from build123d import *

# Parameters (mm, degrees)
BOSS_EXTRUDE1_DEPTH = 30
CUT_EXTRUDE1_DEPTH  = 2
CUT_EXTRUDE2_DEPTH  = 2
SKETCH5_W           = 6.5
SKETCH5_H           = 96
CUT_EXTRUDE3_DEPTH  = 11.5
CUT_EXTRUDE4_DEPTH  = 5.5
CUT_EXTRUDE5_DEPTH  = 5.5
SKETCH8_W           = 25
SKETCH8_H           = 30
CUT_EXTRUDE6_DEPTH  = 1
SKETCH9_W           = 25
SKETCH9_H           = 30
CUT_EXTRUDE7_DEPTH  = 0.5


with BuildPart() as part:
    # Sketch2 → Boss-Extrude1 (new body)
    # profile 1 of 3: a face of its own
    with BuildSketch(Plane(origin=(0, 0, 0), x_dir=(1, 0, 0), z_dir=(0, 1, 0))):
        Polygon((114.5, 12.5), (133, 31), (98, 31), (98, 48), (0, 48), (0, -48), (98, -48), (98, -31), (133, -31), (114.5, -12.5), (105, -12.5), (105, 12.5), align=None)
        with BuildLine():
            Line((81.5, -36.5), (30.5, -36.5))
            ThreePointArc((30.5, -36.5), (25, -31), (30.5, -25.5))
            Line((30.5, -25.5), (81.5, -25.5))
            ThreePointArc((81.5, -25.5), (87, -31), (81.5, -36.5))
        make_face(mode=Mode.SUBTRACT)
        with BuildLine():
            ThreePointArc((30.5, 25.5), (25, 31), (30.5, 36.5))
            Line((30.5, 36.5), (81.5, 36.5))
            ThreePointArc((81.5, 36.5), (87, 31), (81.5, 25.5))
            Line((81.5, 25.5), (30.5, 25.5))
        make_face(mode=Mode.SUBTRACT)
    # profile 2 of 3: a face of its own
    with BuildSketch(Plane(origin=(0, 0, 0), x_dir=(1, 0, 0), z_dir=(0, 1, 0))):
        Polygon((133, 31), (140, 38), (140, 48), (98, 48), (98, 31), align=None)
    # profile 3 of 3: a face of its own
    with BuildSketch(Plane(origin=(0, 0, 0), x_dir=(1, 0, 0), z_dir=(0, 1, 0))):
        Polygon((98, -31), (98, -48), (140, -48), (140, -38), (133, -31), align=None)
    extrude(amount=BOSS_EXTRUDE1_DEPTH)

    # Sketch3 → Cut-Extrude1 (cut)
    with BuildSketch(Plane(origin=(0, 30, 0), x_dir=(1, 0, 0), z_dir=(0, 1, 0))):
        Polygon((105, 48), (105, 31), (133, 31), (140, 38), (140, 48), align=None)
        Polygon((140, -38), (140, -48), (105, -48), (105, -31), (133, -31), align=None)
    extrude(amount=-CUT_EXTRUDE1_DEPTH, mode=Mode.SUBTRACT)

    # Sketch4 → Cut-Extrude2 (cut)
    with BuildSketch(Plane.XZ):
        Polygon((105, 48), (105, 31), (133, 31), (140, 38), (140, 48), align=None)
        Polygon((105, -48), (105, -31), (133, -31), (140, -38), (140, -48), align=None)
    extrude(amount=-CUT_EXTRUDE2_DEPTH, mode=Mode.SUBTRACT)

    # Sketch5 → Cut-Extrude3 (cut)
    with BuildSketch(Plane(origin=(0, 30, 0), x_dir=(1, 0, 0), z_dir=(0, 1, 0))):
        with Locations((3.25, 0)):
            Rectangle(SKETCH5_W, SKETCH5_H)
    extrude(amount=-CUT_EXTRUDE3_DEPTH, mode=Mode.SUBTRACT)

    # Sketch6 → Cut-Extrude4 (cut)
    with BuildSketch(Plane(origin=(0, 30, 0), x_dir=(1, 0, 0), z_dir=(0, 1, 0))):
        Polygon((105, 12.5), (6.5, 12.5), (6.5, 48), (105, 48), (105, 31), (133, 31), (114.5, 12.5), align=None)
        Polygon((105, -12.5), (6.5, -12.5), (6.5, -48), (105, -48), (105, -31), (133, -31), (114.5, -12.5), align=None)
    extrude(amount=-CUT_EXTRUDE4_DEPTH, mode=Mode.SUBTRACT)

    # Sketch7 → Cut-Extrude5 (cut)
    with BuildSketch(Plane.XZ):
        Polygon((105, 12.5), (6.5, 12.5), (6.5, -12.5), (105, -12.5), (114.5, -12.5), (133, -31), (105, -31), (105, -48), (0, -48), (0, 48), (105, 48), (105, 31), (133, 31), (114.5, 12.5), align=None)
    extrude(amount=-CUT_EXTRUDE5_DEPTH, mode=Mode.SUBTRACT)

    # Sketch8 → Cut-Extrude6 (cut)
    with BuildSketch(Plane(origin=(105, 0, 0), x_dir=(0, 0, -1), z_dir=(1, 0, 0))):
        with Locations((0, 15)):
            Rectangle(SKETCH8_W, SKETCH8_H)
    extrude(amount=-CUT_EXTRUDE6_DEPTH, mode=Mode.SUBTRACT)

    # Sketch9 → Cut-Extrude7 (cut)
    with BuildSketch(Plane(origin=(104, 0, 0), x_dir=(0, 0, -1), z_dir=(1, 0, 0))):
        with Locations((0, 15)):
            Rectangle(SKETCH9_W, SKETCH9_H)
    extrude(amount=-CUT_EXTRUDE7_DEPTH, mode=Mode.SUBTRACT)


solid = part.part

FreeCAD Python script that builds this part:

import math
import FreeCAD as App
import Part
import Sketcher
Q = App.Units.Quantity

doc = App.newDocument("Part")
body = doc.addObject("PartDesign::Body", "Body")

# Sketch on XZ plane
sketch1 = doc.addObject("Sketcher::SketchObject", "Sketch")
body.addObject(sketch1)
sketch1.AttachmentSupport = (doc.XZ_Plane, [""])
sketch1.MapMode = "FlatFace"
sketch1.addGeometry([
    Part.LineSegment(App.Vector(114, -12, 0), App.Vector(140, -38, 0)),  # 0
    Part.LineSegment(App.Vector(140, -38, 0), App.Vector(140, -48, 0)),  # 1
    Part.LineSegment(App.Vector(140, -48, 0), App.Vector(0, -48, 0)),  # 2
    Part.LineSegment(App.Vector(0, -48, 0), App.Vector(0, 48, 0)),  # 3
    Part.LineSegment(App.Vector(0, 48, 0), App.Vector(140, 48, 0)),  # 4
    Part.LineSegment(App.Vector(140, 48, 0), App.Vector(140, 38, 0)),  # 5
    Part.LineSegment(App.Vector(140, 38, 0), App.Vector(114, 12, 0)),  # 6
    Part.LineSegment(App.Vector(114, 12, 0), App.Vector(105, 12, 0)),  # 7
    Part.LineSegment(App.Vector(105, 12, 0), App.Vector(105, -12, 0)),  # 8
    Part.LineSegment(App.Vector(105, -12, 0), App.Vector(114, -12, 0)),  # 9
    Part.ArcOfCircle(Part.Circle(App.Vector(82, 31, 0), App.Vector(0, 0, 1), 6), math.radians(-90), math.radians(90)),  # 10
    Part.LineSegment(App.Vector(82, 36, 0), App.Vector(30, 36, 0)),  # 11
    Part.ArcOfCircle(Part.Circle(App.Vector(30, 31, 0), App.Vector(0, 0, 1), 6), math.radians(90), math.radians(270)),  # 12
    Part.LineSegment(App.Vector(30, 26, 0), App.Vector(82, 26, 0)),  # 13
    Part.LineSegment(App.Vector(82, -26, 0), App.Vector(30, -26, 0)),  # 14
    Part.ArcOfCircle(Part.Circle(App.Vector(30, -31, 0), App.Vector(0, 0, 1), 6), math.radians(90), math.radians(270)),  # 15
    Part.LineSegment(App.Vector(30, -36, 0), App.Vector(82, -36, 0)),  # 16
    Part.ArcOfCircle(Part.Circle(App.Vector(82, -31, 0), App.Vector(0, 0, 1), 6), math.radians(-90), math.radians(90)),  # 17
], False)
sketch1.addConstraint([
    Sketcher.Constraint("Coincident", 0, 2, 1, 1),
    Sketcher.Constraint("Coincident", 1, 2, 2, 1),
    Sketcher.Constraint("Coincident", 2, 2, 3, 1),
    Sketcher.Constraint("Coincident", 3, 2, 4, 1),
    Sketcher.Constraint("Coincident", 4, 2, 5, 1),
    Sketcher.Constraint("Coincident", 5, 2, 6, 1),
    Sketcher.Constraint("Coincident", 6, 2, 7, 1),
    Sketcher.Constraint("Coincident", 7, 2, 8, 1),
    Sketcher.Constraint("Coincident", 8, 2, 9, 1),
    Sketcher.Constraint("Coincident", 9, 2, 0, 1),
    Sketcher.Constraint("Tangent", 10, 2, 11, 1),
    Sketcher.Constraint("Tangent", 11, 2, 12, 1),
    Sketcher.Constraint("Tangent", 12, 2, 13, 1),
    Sketcher.Constraint("Tangent", 13, 2, 10, 1),
    Sketcher.Constraint("Tangent", 14, 2, 15, 1),
    Sketcher.Constraint("Tangent", 15, 2, 16, 1),
    Sketcher.Constraint("Tangent", 16, 2, 17, 1),
    Sketcher.Constraint("Tangent", 17, 2, 14, 1),
    Sketcher.Constraint("Vertical", 1),
    Sketcher.Constraint("Horizontal", 2),
    Sketcher.Constraint("Vertical", 3),
    Sketcher.Constraint("Horizontal", 4),
    Sketcher.Constraint("Vertical", 5),
    Sketcher.Constraint("Horizontal", 7),
    Sketcher.Constraint("Vertical", 8),
    Sketcher.Constraint("Horizontal", 9),
    Sketcher.Constraint("Horizontal", 11),
    Sketcher.Constraint("Horizontal", 13),
    Sketcher.Constraint("Horizontal", 14),
    Sketcher.Constraint("Horizontal", 16),
    Sketcher.Constraint("Equal", 12, 15),
    Sketcher.Constraint("Symmetric", 2, 2, 3, 2, -1, 1),
    Sketcher.Constraint("Symmetric", 12, 3, 15, 3, -1),
    Sketcher.Constraint("Symmetric", 0, 2, 5, 2, -1),
    Sketcher.Constraint("Symmetric", 6, 2, 9, 2, -1),
    Sketcher.Constraint("Perpendicular", 0, 6),
    Sketcher.Constraint("Vertical", 10, 3, 17, 3),
    Sketcher.Constraint("Radius", 10, Q("5.5 mm")),
    Sketcher.Constraint("DistanceX", 2, 2, 2, 1, Q("140 mm")),
    Sketcher.Constraint("DistanceX", 11, 2, 11, 1, Q("51 mm")),
    Sketcher.Constraint("DistanceY", 1, 2, 1, 1, Q("10 mm")),
    Sketcher.Constraint("DistanceY", 3, 1, 3, 2, Q("96 mm")),
    Sketcher.Constraint("DistanceY", 8, 2, 8, 1, Q("25 mm")),
    Sketcher.Constraint("DistanceX", 7, 2, 7, 1, Q("9.5 mm")),
    Sketcher.Constraint("DistanceY", -1, 1, 10, 3, Q("31 mm")),
    Sketcher.Constraint("DistanceX", 10, 3, 6, 2, Q("33 mm")),
])
pad1 = doc.addObject("PartDesign::Pad", "Pad")
body.addObject(pad1)
pad1.Profile = sketch1
pad1.Length = 30
pad1.Reversed = True

# Sketch on XZ plane
sketch2 = doc.addObject("Sketcher::SketchObject", "Sketch001")
body.addObject(sketch2)
sketch2.AttachmentSupport = (doc.XZ_Plane, [""])
sketch2.MapMode = "FlatFace"
sketch2.AttachmentOffset = App.Placement(App.Vector(0, 0, -30), App.Rotation())
sketch2.addGeometry([
    Part.LineSegment(App.Vector(105, -48, 0), App.Vector(105, -31, 0)),  # 0
    Part.LineSegment(App.Vector(105, -31, 0), App.Vector(133, -31, 0)),  # 1
    Part.LineSegment(App.Vector(133, -31, 0), App.Vector(140, -38, 0)),  # 2
    Part.LineSegment(App.Vector(140, -38, 0), App.Vector(140, -48, 0)),  # 3
    Part.LineSegment(App.Vector(140, -48, 0), App.Vector(105, -48, 0)),  # 4
    Part.LineSegment(App.Vector(140, 48, 0), App.Vector(140, 38, 0)),  # 5
    Part.LineSegment(App.Vector(140, 38, 0), App.Vector(133, 31, 0)),  # 6
    Part.LineSegment(App.Vector(133, 31, 0), App.Vector(105, 31, 0)),  # 7
    Part.LineSegment(App.Vector(105, 31, 0), App.Vector(105, 48, 0)),  # 8
    Part.LineSegment(App.Vector(105, 48, 0), App.Vector(140, 48, 0)),  # 9
], False)
sketch2.addConstraint([
    Sketcher.Constraint("Coincident", 0, 2, 1, 1),
    Sketcher.Constraint("Coincident", 1, 2, 2, 1),
    Sketcher.Constraint("Coincident", 2, 2, 3, 1),
    Sketcher.Constraint("Coincident", 3, 2, 4, 1),
    Sketcher.Constraint("Coincident", 4, 2, 0, 1),
    Sketcher.Constraint("Coincident", 5, 2, 6, 1),
    Sketcher.Constraint("Coincident", 6, 2, 7, 1),
    Sketcher.Constraint("Coincident", 7, 2, 8, 1),
    Sketcher.Constraint("Coincident", 8, 2, 9, 1),
    Sketcher.Constraint("Coincident", 9, 2, 5, 1),
    Sketcher.Constraint("Vertical", 0),
    Sketcher.Constraint("Horizontal", 1),
    Sketcher.Constraint("Vertical", 3),
    Sketcher.Constraint("Horizontal", 4),
    Sketcher.Constraint("Vertical", 5),
    Sketcher.Constraint("Horizontal", 7),
    Sketcher.Constraint("Vertical", 8),
    Sketcher.Constraint("Horizontal", 9),
    Sketcher.Constraint("Symmetric", 2, 2, 5, 2, -1),
    Sketcher.Constraint("Symmetric", 1, 2, 6, 2, -1),
    Sketcher.Constraint("Symmetric", 4, 2, 8, 2, -1),
    Sketcher.Constraint("Perpendicular", 2, 6),
    Sketcher.Constraint("DistanceX", 1, 1, 1, 2, Q("28 mm")),
    Sketcher.Constraint("DistanceX", 4, 2, 4, 1, Q("35 mm")),
    Sketcher.Constraint("DistanceY", 0, 1, 0, 2, Q("17 mm")),
    Sketcher.Constraint("DistanceX", -1, 1, 0, 2, Q("105 mm")),
    Sketcher.Constraint("DistanceY", 0, 2, -1, 1, Q("31 mm")),
])
pocket1 = doc.addObject("PartDesign::Pocket", "Pocket")
body.addObject(pocket1)
pocket1.Profile = sketch2
pocket1.Length = 2
pocket1.Reversed = True

# Sketch on XZ plane
sketch3 = doc.addObject("Sketcher::SketchObject", "Sketch002")
body.addObject(sketch3)
sketch3.AttachmentSupport = (doc.XZ_Plane, [""])
sketch3.MapMode = "FlatFace"
sketch3.addGeometry([
    Part.LineSegment(App.Vector(105, 48, 0), App.Vector(105, 31, 0)),  # 0
    Part.LineSegment(App.Vector(105, 31, 0), App.Vector(133, 31, 0)),  # 1
    Part.LineSegment(App.Vector(133, 31, 0), App.Vector(140, 38, 0)),  # 2
    Part.LineSegment(App.Vector(140, 38, 0), App.Vector(140, 48, 0)),  # 3
    Part.LineSegment(App.Vector(140, 48, 0), App.Vector(105, 48, 0)),  # 4
    Part.LineSegment(App.Vector(105, -31, 0), App.Vector(105, -48, 0)),  # 5
    Part.LineSegment(App.Vector(105, -48, 0), App.Vector(140, -48, 0)),  # 6
    Part.LineSegment(App.Vector(140, -48, 0), App.Vector(140, -38, 0)),  # 7
    Part.LineSegment(App.Vector(140, -38, 0), App.Vector(133, -31, 0)),  # 8
    Part.LineSegment(App.Vector(133, -31, 0), App.Vector(105, -31, 0)),  # 9
], False)
sketch3.addConstraint([
    Sketcher.Constraint("Coincident", 0, 2, 1, 1),
    Sketcher.Constraint("Coincident", 1, 2, 2, 1),
    Sketcher.Constraint("Coincident", 2, 2, 3, 1),
    Sketcher.Constraint("Coincident", 3, 2, 4, 1),
    Sketcher.Constraint("Coincident", 4, 2, 0, 1),
    Sketcher.Constraint("Coincident", 5, 2, 6, 1),
    Sketcher.Constraint("Coincident", 6, 2, 7, 1),
    Sketcher.Constraint("Coincident", 7, 2, 8, 1),
    Sketcher.Constraint("Coincident", 8, 2, 9, 1),
    Sketcher.Constraint("Coincident", 9, 2, 5, 1),
    Sketcher.Constraint("Vertical", 0),
    Sketcher.Constraint("Horizontal", 1),
    Sketcher.Constraint("Vertical", 3),
    Sketcher.Constraint("Horizontal", 4),
    Sketcher.Constraint("Vertical", 5),
    Sketcher.Constraint("Horizontal", 6),
    Sketcher.Constraint("Vertical", 7),
    Sketcher.Constraint("Horizontal", 9),
    Sketcher.Constraint("Symmetric", 4, 2, 5, 2, -1),
    Sketcher.Constraint("Symmetric", 2, 2, 7, 2, -1),
    Sketcher.Constraint("Symmetric", 1, 2, 8, 2, -1),
    Sketcher.Constraint("Perpendicular", 2, 8),
    Sketcher.Constraint("DistanceX", 1, 1, 1, 2, Q("28 mm")),
    Sketcher.Constraint("DistanceX", 4, 2, 4, 1, Q("35 mm")),
    Sketcher.Constraint("DistanceY", 0, 2, 0, 1, Q("17 mm")),
    Sketcher.Constraint("DistanceX", -1, 1, 0, 2, Q("105 mm")),
    Sketcher.Constraint("DistanceY", -1, 1, 0, 2, Q("31 mm")),
])
pocket2 = doc.addObject("PartDesign::Pocket", "Pocket001")
body.addObject(pocket2)
pocket2.Profile = sketch3
pocket2.Length = 2

# Sketch on XZ plane
sketch4 = doc.addObject("Sketcher::SketchObject", "Sketch003")
body.addObject(sketch4)
sketch4.AttachmentSupport = (doc.XZ_Plane, [""])
sketch4.MapMode = "FlatFace"
sketch4.AttachmentOffset = App.Placement(App.Vector(0, 0, -30), App.Rotation())
sketch4.addGeometry([
    Part.LineSegment(App.Vector(0, -48, 0), App.Vector(0, 48, 0)),
    Part.LineSegment(App.Vector(0, 48, 0), App.Vector(6, 48, 0)),
    Part.LineSegment(App.Vector(6, 48, 0), App.Vector(6, -48, 0)),
    Part.LineSegment(App.Vector(6, -48, 0), App.Vector(0, -48, 0)),
], False)
sketch4.addConstraint([
    Sketcher.Constraint("Coincident", 0, 2, 1, 1),
    Sketcher.Constraint("Coincident", 1, 2, 2, 1),
    Sketcher.Constraint("Coincident", 2, 2, 3, 1),
    Sketcher.Constraint("Coincident", 3, 2, 0, 1),
    Sketcher.Constraint("Vertical", 0),
    Sketcher.Constraint("Horizontal", 1),
    Sketcher.Constraint("Vertical", 2),
    Sketcher.Constraint("Horizontal", 3),
    Sketcher.Constraint("Symmetric", 0, 2, 3, 2, -1, 1),
    Sketcher.Constraint("DistanceY", 0, 1, 0, 2, Q("96 mm")),
    Sketcher.Constraint("DistanceX", 1, 1, 1, 2, Q("6.5 mm")),
])
pocket3 = doc.addObject("PartDesign::Pocket", "Pocket002")
body.addObject(pocket3)
pocket3.Profile = sketch4
pocket3.Length = 11.5
pocket3.Reversed = True

# Sketch on XZ plane
sketch5 = doc.addObject("Sketcher::SketchObject", "Sketch004")
body.addObject(sketch5)
sketch5.AttachmentSupport = (doc.XZ_Plane, [""])
sketch5.MapMode = "FlatFace"
sketch5.AttachmentOffset = App.Placement(App.Vector(0, 0, -30), App.Rotation())
sketch5.addGeometry([
    Part.LineSegment(App.Vector(6, -12, 0), App.Vector(114, -12, 0)),  # 0
    Part.LineSegment(App.Vector(114, -12, 0), App.Vector(133, -31, 0)),  # 1
    Part.LineSegment(App.Vector(133, -31, 0), App.Vector(105, -31, 0)),  # 2
    Part.LineSegment(App.Vector(105, -31, 0), App.Vector(105, -48, 0)),  # 3
    Part.LineSegment(App.Vector(105, -48, 0), App.Vector(6, -48, 0)),  # 4
    Part.LineSegment(App.Vector(6, -48, 0), App.Vector(6, -12, 0)),  # 5
    Part.LineSegment(App.Vector(6, 12, 0), App.Vector(6, 48, 0)),  # 6
    Part.LineSegment(App.Vector(6, 48, 0), App.Vector(105, 48, 0)),  # 7
    Part.LineSegment(App.Vector(105, 48, 0), App.Vector(105, 31, 0)),  # 8
    Part.LineSegment(App.Vector(105, 31, 0), App.Vector(133, 31, 0)),  # 9
    Part.LineSegment(App.Vector(133, 31, 0), App.Vector(114, 12, 0)),  # 10
    Part.LineSegment(App.Vector(114, 12, 0), App.Vector(6, 12, 0)),  # 11
], False)
sketch5.addConstraint([
    Sketcher.Constraint("Coincident", 0, 2, 1, 1),
    Sketcher.Constraint("Coincident", 1, 2, 2, 1),
    Sketcher.Constraint("Coincident", 2, 2, 3, 1),
    Sketcher.Constraint("Coincident", 3, 2, 4, 1),
    Sketcher.Constraint("Coincident", 4, 2, 5, 1),
    Sketcher.Constraint("Coincident", 5, 2, 0, 1),
    Sketcher.Constraint("Coincident", 6, 2, 7, 1),
    Sketcher.Constraint("Coincident", 7, 2, 8, 1),
    Sketcher.Constraint("Coincident", 8, 2, 9, 1),
    Sketcher.Constraint("Coincident", 9, 2, 10, 1),
    Sketcher.Constraint("Coincident", 10, 2, 11, 1),
    Sketcher.Constraint("Coincident", 11, 2, 6, 1),
    Sketcher.Constraint("Horizontal", 0),
    Sketcher.Constraint("Horizontal", 2),
    Sketcher.Constraint("Vertical", 3),
    Sketcher.Constraint("Horizontal", 4),
    Sketcher.Constraint("Vertical", 5),
    Sketcher.Constraint("Vertical", 6),
    Sketcher.Constraint("Horizontal", 7),
    Sketcher.Constraint("Vertical", 8),
    Sketcher.Constraint("Horizontal", 9),
    Sketcher.Constraint("Horizontal", 11),
    Sketcher.Constraint("Symmetric", 4, 2, 6, 2, -1),
    Sketcher.Constraint("Symmetric", 2, 2, 8, 2, -1),
    Sketcher.Constraint("Symmetric", 0, 2, 10, 2, -1),
    Sketcher.Constraint("Perpendicular", 1, 10),
    Sketcher.Constraint("Vertical", 1, 2, 9, 2),
    Sketcher.Constraint("DistanceX", 0, 1, 0, 2, Q("108 mm")),
    Sketcher.Constraint("DistanceX", 2, 2, 2, 1, Q("28 mm")),
    Sketcher.Constraint("DistanceY", 3, 2, 3, 1, Q("17 mm")),
    Sketcher.Constraint("DistanceX", 4, 2, 4, 1, Q("98.5 mm")),
    Sketcher.Constraint("DistanceX", -1, 1, 1, 2, Q("133 mm")),
    Sketcher.Constraint("DistanceY", 1, 2, -1, 1, Q("31 mm")),
])
pocket4 = doc.addObject("PartDesign::Pocket", "Pocket003")
body.addObject(pocket4)
pocket4.Profile = sketch5
pocket4.Length = 5.5
pocket4.Reversed = True

# Sketch on XZ plane
sketch6 = doc.addObject("Sketcher::SketchObject", "Sketch005")
body.addObject(sketch6)
sketch6.AttachmentSupport = (doc.XZ_Plane, [""])
sketch6.MapMode = "FlatFace"
sketch6.addGeometry([
    Part.LineSegment(App.Vector(6, 12, 0), App.Vector(114, 12, 0)),  # 0
    Part.LineSegment(App.Vector(114, 12, 0), App.Vector(133, 31, 0)),  # 1
    Part.LineSegment(App.Vector(133, 31, 0), App.Vector(105, 31, 0)),  # 2
    Part.LineSegment(App.Vector(105, 31, 0), App.Vector(105, 48, 0)),  # 3
    Part.LineSegment(App.Vector(105, 48, 0), App.Vector(0, 48, 0)),  # 4
    Part.LineSegment(App.Vector(0, 48, 0), App.Vector(0, -48, 0)),  # 5
    Part.LineSegment(App.Vector(0, -48, 0), App.Vector(105, -48, 0)),  # 6
    Part.LineSegment(App.Vector(105, -48, 0), App.Vector(105, -31, 0)),  # 7
    Part.LineSegment(App.Vector(105, -31, 0), App.Vector(133, -31, 0)),  # 8
    Part.LineSegment(App.Vector(133, -31, 0), App.Vector(114, -12, 0)),  # 9
    Part.LineSegment(App.Vector(114, -12, 0), App.Vector(6, -12, 0)),  # 10
    Part.LineSegment(App.Vector(6, -12, 0), App.Vector(6, 12, 0)),  # 11
], False)
sketch6.addConstraint([
    Sketcher.Constraint("Coincident", 0, 2, 1, 1),
    Sketcher.Constraint("Coincident", 1, 2, 2, 1),
    Sketcher.Constraint("Coincident", 2, 2, 3, 1),
    Sketcher.Constraint("Coincident", 3, 2, 4, 1),
    Sketcher.Constraint("Coincident", 4, 2, 5, 1),
    Sketcher.Constraint("Coincident", 5, 2, 6, 1),
    Sketcher.Constraint("Coincident", 6, 2, 7, 1),
    Sketcher.Constraint("Coincident", 7, 2, 8, 1),
    Sketcher.Constraint("Coincident", 8, 2, 9, 1),
    Sketcher.Constraint("Coincident", 9, 2, 10, 1),
    Sketcher.Constraint("Coincident", 10, 2, 11, 1),
    Sketcher.Constraint("Coincident", 11, 2, 0, 1),
    Sketcher.Constraint("Horizontal", 0),
    Sketcher.Constraint("Horizontal", 2),
    Sketcher.Constraint("Vertical", 3),
    Sketcher.Constraint("Horizontal", 4),
    Sketcher.Constraint("Vertical", 5),
    Sketcher.Constraint("Horizontal", 6),
    Sketcher.Constraint("Vertical", 7),
    Sketcher.Constraint("Horizontal", 8),
    Sketcher.Constraint("Horizontal", 10),
    Sketcher.Constraint("Vertical", 11),
    Sketcher.Constraint("Symmetric", 4, 2, 5, 2, -1, 1),
    Sketcher.Constraint("Symmetric", 2, 2, 7, 2, -1),
    Sketcher.Constraint("Symmetric", 0, 2, 9, 2, -1),
    Sketcher.Constraint("Perpendicular", 1, 9),
    Sketcher.Constraint("Vertical", 1, 2, 8, 2),
    Sketcher.Constraint("DistanceX", 0, 1, 0, 2, Q("108 mm")),
    Sketcher.Constraint("DistanceX", 2, 2, 2, 1, Q("28 mm")),
    Sketcher.Constraint("DistanceX", 4, 2, 4, 1, Q("105 mm")),
    Sketcher.Constraint("DistanceY", 3, 1, 3, 2, Q("17 mm")),
    Sketcher.Constraint("DistanceY", 5, 2, 5, 1, Q("96 mm")),
    Sketcher.Constraint("DistanceY", 11, 1, 11, 2, Q("25 mm")),
])
pocket5 = doc.addObject("PartDesign::Pocket", "Pocket004")
body.addObject(pocket5)
pocket5.Profile = sketch6
pocket5.Length = 5.5

# Sketch on YZ plane
sketch7 = doc.addObject("Sketcher::SketchObject", "Sketch006")
body.addObject(sketch7)
sketch7.AttachmentSupport = (doc.YZ_Plane, [""])
sketch7.MapMode = "FlatFace"
sketch7.AttachmentOffset = App.Placement(App.Vector(0, 0, 105), App.Rotation())
sketch7.addGeometry([
    Part.LineSegment(App.Vector(30, 12, 0), App.Vector(0, 12, 0)),
    Part.LineSegment(App.Vector(0, 12, 0), App.Vector(0, -12, 0)),
    Part.LineSegment(App.Vector(0, -12, 0), App.Vector(30, -12, 0)),
    Part.LineSegment(App.Vector(30, -12, 0), App.Vector(30, 12, 0)),
], False)
sketch7.addConstraint([
    Sketcher.Constraint("Coincident", 0, 2, 1, 1),
    Sketcher.Constraint("Coincident", 1, 2, 2, 1),
    Sketcher.Constraint("Coincident", 2, 2, 3, 1),
    Sketcher.Constraint("Coincident", 3, 2, 0, 1),
    Sketcher.Constraint("Horizontal", 0),
    Sketcher.Constraint("Vertical", 1),
    Sketcher.Constraint("Horizontal", 2),
    Sketcher.Constraint("Vertical", 3),
    Sketcher.Constraint("Symmetric", 0, 2, 1, 2, -1, 1),
    Sketcher.Constraint("DistanceX", 0, 2, 0, 1, Q("30 mm")),
    Sketcher.Constraint("DistanceY", 1, 2, 1, 1, Q("25 mm")),
])
pocket6 = doc.addObject("PartDesign::Pocket", "Pocket005")
body.addObject(pocket6)
pocket6.Profile = sketch7
pocket6.Length = 1

# Sketch on YZ plane
sketch8 = doc.addObject("Sketcher::SketchObject", "Sketch007")
body.addObject(sketch8)
sketch8.AttachmentSupport = (doc.YZ_Plane, [""])
sketch8.MapMode = "FlatFace"
sketch8.AttachmentOffset = App.Placement(App.Vector(0, 0, 104), App.Rotation())
sketch8.addGeometry([
    Part.LineSegment(App.Vector(30, 12, 0), App.Vector(0, 12, 0)),
    Part.LineSegment(App.Vector(0, 12, 0), App.Vector(0, -12, 0)),
    Part.LineSegment(App.Vector(0, -12, 0), App.Vector(30, -12, 0)),
    Part.LineSegment(App.Vector(30, -12, 0), App.Vector(30, 12, 0)),
], False)
sketch8.addConstraint([
    Sketcher.Constraint("Coincident", 0, 2, 1, 1),
    Sketcher.Constraint("Coincident", 1, 2, 2, 1),
    Sketcher.Constraint("Coincident", 2, 2, 3, 1),
    Sketcher.Constraint("Coincident", 3, 2, 0, 1),
    Sketcher.Constraint("Horizontal", 0),
    Sketcher.Constraint("Vertical", 1),
    Sketcher.Constraint("Horizontal", 2),
    Sketcher.Constraint("Vertical", 3),
    Sketcher.Constraint("Symmetric", 0, 2, 1, 2, -1, 1),
    Sketcher.Constraint("DistanceX", 0, 2, 0, 1, Q("30 mm")),
    Sketcher.Constraint("DistanceY", 1, 2, 1, 1, Q("25 mm")),
])
pocket7 = doc.addObject("PartDesign::Pocket", "Pocket006")
body.addObject(pocket7)
pocket7.Profile = sketch8
pocket7.Length = 0.5

doc.recompute()
